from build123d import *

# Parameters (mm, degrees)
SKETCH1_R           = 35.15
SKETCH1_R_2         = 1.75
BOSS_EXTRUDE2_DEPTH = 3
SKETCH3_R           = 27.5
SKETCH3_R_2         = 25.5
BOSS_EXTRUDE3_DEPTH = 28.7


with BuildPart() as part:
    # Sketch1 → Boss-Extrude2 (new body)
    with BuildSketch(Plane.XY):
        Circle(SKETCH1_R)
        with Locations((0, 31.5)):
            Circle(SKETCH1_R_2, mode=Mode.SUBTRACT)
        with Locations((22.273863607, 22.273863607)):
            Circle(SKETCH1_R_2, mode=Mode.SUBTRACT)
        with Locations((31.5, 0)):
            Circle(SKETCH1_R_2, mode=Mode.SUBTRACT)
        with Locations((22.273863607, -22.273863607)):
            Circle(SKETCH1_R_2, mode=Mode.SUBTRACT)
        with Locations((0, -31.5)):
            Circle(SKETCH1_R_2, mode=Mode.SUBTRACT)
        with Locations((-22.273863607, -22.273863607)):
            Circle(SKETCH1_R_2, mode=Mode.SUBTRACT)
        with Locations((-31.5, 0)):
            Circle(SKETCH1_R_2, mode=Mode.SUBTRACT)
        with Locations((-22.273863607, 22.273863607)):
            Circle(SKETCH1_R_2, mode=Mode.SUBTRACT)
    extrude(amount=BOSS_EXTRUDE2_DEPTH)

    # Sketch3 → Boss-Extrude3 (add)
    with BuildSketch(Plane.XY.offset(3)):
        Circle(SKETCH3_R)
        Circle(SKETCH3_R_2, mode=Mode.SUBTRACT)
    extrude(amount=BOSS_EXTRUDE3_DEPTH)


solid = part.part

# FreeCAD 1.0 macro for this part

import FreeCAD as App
import Part
import Sketcher

V = App.Vector

doc = App.newDocument("Part")
body = doc.addObject("PartDesign::Body", "Body")

# Sketch on XY plane
sketch1 = body.newObject("Sketcher::SketchObject", "Sketch")
sketch1.AttachmentSupport = (doc.getObject("XY_Plane"), [""])
sketch1.MapMode = "FlatFace"
sketch1.addGeometry([
    Part.Circle(V(0, 0, 0), V(0, 0, 1), 35.15),  # 0
    Part.Circle(V(-22.273864, -22.273864, 0), V(0, 0, 1), 1.75),  # 1
    Part.Circle(V(0, -31.5, 0), V(0, 0, 1), 1.75),  # 2
    Part.Circle(V(22.273864, -22.273864, 0), V(0, 0, 1), 1.75),  # 3
    Part.Circle(V(-31.5, 0, 0), V(0, 0, 1), 1.75),  # 4
    Part.Circle(V(-22.273864, 22.273864, 0), V(0, 0, 1), 1.75),  # 5
    Part.Circle(V(31.5, 0, 0), V(0, 0, 1), 1.75),  # 6
    Part.Circle(V(0, 31.5, 0), V(0, 0, 1), 1.75),  # 7
    Part.Circle(V(22.273864, 22.273864, 0), V(0, 0, 1), 1.75),  # 8
], False)
sketch1.addConstraint([
    Sketcher.Constraint("Coincident", 0, 3, -1, 1),
    Sketcher.Constraint("Equal", 1, 2),
    Sketcher.Constraint("Equal", 2, 3),
    Sketcher.Constraint("Equal", 3, 4),
    Sketcher.Constraint("Equal", 4, 5),
    Sketcher.Constraint("Equal", 5, 6),
    Sketcher.Constraint("Equal", 6, 7),
    Sketcher.Constraint("Equal", 7, 8),
    Sketcher.Constraint("Symmetric", 3, 3, 5, 3, -1, 1),
    Sketcher.Constraint("Symmetric", 4, 3, 6, 3, -1, 1),
    Sketcher.Constraint("Symmetric", 2, 3, 7, 3, -1, 1),
    Sketcher.Constraint("Symmetric", 1, 3, 8, 3, -1, 1),
    Sketcher.Constraint("Symmetric", 1, 3, 3, 3, -2),
    Sketcher.Constraint("PointOnObject", 2, 3, -2),
    Sketcher.Constraint("PointOnObject", 4, 3, -1),
    Sketcher.Constraint("Diameter", 0, 70.3),
    Sketcher.Constraint("Diameter", 1, 3.5),
    Sketcher.Constraint("DistanceY", 2, 3, -1, 1, 31.5),
    Sketcher.Constraint("DistanceX", 4, 3, -1, 1, 31.5),
    Sketcher.Constraint("DistanceX", 1, 3, -1, 1, 22.273864),
    Sketcher.Constraint("DistanceY", 1, 3, -1, 1, 22.273864),
])
pad1 = body.newObject("PartDesign::Pad", "Pad")
pad1.Profile = sketch1
pad1.Length = 3

# Sketch on XY plane
sketch2 = body.newObject("Sketcher::SketchObject", "Sketch001")
sketch2.AttachmentSupport = (doc.getObject("XY_Plane"), [""])
sketch2.MapMode = "FlatFace"
sketch2.AttachmentOffset = App.Placement(V(0, 0, 3), App.Rotation())
sketch2.addGeometry([
    Part.Circle(V(0, 0, 0), V(0, 0, 1), 27.5),
    Part.Circle(V(0, 0, 0), V(0, 0, 1), 25.5),
], False)
sketch2.addConstraint([
    Sketcher.Constraint("Coincident", 0, 3, -1, 1),
    Sketcher.Constraint("Coincident", 1, 3, -1, 1),
    Sketcher.Constraint("Diameter", 0, 55.0),
    Sketcher.Constraint("Diameter", 1, 51.0),
])
pad2 = body.newObject("PartDesign::Pad", "Pad001")
pad2.Profile = sketch2
pad2.Length = 28.7

doc.recompute()
